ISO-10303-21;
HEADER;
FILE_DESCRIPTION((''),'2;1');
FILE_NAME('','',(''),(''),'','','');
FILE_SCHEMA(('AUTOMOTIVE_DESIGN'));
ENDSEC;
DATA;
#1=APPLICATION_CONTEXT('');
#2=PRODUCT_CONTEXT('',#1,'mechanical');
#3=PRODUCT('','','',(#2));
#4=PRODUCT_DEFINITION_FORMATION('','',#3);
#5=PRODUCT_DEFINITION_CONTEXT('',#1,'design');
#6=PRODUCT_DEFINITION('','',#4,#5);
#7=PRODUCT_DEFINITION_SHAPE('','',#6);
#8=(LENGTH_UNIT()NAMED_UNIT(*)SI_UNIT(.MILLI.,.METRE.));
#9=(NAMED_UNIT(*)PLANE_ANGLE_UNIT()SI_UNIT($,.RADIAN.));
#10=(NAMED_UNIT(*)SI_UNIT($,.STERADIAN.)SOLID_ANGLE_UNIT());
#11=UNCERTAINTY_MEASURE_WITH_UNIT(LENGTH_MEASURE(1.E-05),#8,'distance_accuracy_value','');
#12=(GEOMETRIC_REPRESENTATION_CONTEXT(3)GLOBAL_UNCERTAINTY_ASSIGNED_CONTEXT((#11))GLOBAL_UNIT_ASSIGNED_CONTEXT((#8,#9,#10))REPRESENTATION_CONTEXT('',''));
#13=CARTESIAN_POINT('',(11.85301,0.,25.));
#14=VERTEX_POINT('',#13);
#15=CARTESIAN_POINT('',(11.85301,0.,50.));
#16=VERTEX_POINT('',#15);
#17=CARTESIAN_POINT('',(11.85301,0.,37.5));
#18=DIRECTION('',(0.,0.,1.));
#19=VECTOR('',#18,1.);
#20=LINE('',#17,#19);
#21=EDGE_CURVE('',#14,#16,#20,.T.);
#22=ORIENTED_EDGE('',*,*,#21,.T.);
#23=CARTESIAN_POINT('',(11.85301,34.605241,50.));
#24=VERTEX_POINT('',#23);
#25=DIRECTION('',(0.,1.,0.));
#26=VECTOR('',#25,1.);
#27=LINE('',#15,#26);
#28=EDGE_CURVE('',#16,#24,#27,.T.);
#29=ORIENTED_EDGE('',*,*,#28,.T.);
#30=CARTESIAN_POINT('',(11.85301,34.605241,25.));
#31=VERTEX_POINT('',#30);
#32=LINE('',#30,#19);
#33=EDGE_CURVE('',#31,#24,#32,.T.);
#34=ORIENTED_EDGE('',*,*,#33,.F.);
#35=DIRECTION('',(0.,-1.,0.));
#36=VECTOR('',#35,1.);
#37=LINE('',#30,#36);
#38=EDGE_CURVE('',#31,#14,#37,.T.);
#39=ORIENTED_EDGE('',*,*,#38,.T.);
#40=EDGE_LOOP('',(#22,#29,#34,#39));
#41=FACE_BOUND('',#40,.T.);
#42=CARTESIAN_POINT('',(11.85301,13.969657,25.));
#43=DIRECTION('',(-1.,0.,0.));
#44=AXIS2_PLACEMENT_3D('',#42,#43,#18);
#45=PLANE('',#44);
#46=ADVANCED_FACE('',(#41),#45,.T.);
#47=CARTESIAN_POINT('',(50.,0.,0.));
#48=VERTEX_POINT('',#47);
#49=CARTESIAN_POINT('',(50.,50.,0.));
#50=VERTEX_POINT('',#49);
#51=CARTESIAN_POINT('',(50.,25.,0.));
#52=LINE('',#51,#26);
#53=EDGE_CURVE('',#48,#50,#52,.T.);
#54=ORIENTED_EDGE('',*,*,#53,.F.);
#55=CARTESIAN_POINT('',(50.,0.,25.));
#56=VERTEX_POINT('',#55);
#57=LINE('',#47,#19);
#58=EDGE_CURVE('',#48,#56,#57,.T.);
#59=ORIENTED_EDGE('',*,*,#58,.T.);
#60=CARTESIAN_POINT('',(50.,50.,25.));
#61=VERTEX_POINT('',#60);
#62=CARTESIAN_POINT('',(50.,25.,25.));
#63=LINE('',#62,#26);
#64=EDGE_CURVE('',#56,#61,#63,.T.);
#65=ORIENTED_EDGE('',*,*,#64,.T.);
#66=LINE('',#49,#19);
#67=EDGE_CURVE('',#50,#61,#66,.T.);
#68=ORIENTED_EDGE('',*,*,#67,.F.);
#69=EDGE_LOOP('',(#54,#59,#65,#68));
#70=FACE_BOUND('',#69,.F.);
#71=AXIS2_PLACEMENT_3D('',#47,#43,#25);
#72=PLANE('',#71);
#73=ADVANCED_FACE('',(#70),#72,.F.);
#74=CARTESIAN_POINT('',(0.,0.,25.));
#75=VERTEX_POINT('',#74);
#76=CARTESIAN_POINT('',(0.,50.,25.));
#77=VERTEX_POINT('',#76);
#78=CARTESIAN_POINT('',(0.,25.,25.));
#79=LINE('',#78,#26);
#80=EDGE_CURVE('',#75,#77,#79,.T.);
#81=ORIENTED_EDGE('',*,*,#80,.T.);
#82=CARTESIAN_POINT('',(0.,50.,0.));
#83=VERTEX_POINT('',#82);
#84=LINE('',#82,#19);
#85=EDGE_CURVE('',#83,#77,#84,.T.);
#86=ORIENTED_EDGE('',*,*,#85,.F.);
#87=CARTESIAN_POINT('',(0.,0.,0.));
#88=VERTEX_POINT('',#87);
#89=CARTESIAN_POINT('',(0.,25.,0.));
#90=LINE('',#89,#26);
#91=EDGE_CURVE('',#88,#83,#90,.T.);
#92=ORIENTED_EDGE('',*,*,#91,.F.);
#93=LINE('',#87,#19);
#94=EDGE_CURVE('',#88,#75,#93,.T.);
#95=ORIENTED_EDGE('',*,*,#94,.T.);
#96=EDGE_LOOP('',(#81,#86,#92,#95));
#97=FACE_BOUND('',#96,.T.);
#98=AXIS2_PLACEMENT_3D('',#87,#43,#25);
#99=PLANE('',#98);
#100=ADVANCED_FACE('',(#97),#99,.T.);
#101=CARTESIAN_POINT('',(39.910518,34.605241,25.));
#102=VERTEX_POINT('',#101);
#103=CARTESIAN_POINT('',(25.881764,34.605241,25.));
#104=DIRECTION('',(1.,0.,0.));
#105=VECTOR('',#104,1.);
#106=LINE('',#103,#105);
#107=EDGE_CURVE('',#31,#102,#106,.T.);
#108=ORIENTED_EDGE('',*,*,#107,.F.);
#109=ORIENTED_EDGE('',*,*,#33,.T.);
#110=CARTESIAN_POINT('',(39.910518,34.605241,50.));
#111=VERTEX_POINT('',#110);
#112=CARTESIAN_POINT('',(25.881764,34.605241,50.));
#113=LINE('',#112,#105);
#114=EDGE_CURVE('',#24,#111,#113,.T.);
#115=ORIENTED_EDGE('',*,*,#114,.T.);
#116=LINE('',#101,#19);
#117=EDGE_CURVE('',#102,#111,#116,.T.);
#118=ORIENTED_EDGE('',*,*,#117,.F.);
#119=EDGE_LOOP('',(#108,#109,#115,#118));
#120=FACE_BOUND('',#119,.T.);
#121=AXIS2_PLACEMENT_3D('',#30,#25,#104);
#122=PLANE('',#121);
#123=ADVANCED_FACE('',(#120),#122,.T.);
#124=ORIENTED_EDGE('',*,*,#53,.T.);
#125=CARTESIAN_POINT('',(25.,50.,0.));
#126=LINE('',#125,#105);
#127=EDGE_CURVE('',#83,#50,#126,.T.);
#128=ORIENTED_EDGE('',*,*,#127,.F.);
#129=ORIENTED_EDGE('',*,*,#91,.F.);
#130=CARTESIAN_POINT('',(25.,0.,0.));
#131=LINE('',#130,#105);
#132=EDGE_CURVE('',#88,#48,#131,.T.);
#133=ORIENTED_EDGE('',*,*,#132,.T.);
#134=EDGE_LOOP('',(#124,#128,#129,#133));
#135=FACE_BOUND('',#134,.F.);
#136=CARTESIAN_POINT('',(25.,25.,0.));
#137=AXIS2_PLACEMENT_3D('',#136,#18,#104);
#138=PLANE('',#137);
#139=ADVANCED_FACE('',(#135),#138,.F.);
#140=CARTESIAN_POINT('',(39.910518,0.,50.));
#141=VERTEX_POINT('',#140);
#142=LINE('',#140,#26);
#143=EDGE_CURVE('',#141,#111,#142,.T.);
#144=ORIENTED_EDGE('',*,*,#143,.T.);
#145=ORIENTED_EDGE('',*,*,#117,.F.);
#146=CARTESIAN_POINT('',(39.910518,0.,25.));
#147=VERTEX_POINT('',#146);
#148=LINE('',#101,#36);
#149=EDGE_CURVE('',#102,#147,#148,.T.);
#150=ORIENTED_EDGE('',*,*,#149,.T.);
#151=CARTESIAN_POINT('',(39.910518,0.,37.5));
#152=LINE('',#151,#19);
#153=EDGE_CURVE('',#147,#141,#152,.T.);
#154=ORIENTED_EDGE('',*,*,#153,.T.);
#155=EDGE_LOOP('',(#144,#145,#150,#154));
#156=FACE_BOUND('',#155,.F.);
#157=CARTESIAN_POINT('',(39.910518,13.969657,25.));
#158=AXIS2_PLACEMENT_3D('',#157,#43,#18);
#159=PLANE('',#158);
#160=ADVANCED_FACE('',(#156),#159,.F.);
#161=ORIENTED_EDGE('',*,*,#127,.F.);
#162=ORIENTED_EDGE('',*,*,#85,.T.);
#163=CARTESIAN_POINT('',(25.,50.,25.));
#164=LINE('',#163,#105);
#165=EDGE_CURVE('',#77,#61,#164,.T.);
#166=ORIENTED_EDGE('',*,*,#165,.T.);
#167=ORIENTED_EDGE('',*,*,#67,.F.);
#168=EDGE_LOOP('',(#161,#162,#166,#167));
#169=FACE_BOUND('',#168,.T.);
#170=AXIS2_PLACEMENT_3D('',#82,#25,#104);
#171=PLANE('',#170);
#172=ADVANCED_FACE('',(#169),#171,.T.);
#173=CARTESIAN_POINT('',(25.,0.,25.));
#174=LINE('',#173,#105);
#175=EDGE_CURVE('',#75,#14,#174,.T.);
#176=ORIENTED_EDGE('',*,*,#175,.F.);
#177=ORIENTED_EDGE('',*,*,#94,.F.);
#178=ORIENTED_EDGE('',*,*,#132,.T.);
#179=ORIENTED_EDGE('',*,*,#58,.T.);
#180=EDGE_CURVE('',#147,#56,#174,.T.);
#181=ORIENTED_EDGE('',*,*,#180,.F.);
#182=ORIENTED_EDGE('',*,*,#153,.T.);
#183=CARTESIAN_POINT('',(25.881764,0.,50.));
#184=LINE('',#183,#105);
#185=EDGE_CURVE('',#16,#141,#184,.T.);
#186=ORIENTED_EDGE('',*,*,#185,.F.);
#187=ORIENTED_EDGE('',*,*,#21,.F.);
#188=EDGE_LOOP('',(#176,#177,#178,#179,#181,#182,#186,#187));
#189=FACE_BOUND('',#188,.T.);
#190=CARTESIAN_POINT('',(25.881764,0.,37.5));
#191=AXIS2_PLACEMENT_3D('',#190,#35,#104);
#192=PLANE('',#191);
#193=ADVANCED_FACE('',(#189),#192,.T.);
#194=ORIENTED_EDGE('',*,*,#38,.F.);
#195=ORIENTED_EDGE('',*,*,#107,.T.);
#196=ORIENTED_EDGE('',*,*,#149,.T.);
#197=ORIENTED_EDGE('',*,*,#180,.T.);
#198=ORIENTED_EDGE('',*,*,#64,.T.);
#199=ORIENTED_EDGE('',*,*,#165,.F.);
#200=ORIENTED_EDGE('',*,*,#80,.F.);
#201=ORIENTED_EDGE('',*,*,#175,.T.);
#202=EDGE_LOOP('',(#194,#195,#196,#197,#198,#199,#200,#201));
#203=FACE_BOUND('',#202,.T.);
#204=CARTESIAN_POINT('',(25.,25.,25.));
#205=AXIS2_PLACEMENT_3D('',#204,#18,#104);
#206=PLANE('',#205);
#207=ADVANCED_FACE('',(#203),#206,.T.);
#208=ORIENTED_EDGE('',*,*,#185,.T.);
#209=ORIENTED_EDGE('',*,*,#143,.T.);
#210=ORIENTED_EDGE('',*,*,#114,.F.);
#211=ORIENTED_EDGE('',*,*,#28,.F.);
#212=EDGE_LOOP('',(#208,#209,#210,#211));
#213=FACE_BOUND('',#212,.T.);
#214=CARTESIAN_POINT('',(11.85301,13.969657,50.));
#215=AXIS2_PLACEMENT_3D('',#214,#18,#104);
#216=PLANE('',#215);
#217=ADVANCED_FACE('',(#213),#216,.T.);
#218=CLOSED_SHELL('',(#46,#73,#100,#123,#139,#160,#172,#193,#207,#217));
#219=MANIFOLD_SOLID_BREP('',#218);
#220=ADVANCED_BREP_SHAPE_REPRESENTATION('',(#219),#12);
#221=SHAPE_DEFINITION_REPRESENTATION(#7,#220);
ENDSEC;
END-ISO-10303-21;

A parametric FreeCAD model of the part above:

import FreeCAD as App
import Part
import Sketcher

doc = App.newDocument("Part")
body = doc.addObject("PartDesign::Body", "Body")

sketch1 = body.newObject("Sketcher::SketchObject", "Sketch")
sketch1.AttachmentSupport = (doc.getObject("XY_Plane"), [""])
sketch1.MapMode = "FlatFace"
sketch1.addGeometry([
    Part.LineSegment(App.Vector(0, 50, 0), App.Vector(0, 0, 0)),
    Part.LineSegment(App.Vector(0, 0, 0), App.Vector(50, 0, 0)),
    Part.LineSegment(App.Vector(50, 0, 0), App.Vector(50, 50, 0)),
    Part.LineSegment(App.Vector(50, 50, 0), App.Vector(0, 50, 0)),
], False)
sketch1.addConstraint([
    Sketcher.Constraint("Coincident", 0, 2, 1, 1),
    Sketcher.Constraint("Coincident", 1, 2, 2, 1),
    Sketcher.Constraint("Coincident", 2, 2, 3, 1),
    Sketcher.Constraint("Coincident", 3, 2, 0, 1),
    Sketcher.Constraint("Vertical", 0),
    Sketcher.Constraint("Horizontal", 1),
    Sketcher.Constraint("Vertical", 2),
    Sketcher.Constraint("Horizontal", 3),
    Sketcher.Constraint("Coincident", 0, 2, -1, 1),
    Sketcher.Constraint("Equal", 3, 0),
    Sketcher.Constraint("DistanceX", 1, 1, 1, 2, 50.0),
])
pad1 = body.newObject("PartDesign::Pad", "Pad")
pad1.Profile = sketch1
pad1.Length = 25

sketch2 = body.newObject("Sketcher::SketchObject", "Sketch001")
sketch2.AttachmentSupport = (doc.getObject("XY_Plane"), [""])
sketch2.MapMode = "FlatFace"
sketch2.AttachmentOffset = App.Placement(App.Vector(0, 0, 25), App.Rotation())
sketch2.addGeometry([
    Part.LineSegment(App.Vector(12, 35, 0), App.Vector(12, 14, 0)),
    Part.LineSegment(App.Vector(12, 14, 0), App.Vector(40, 14, 0)),
    Part.LineSegment(App.Vector(40, 14, 0), App.Vector(40, 35, 0)),
    Part.LineSegment(App.Vector(40, 35, 0), App.Vector(12, 35, 0)),
], False)
sketch2.addConstraint([
    Sketcher.Constraint("Coincident", 0, 2, 1, 1),
    Sketcher.Constraint("Coincident", 1, 2, 2, 1),
    Sketcher.Constraint("Coincident", 2, 2, 3, 1),
    Sketcher.Constraint("Coincident", 3, 2, 0, 1),
    Sketcher.Constraint("Vertical", 0),
    Sketcher.Constraint("Horizontal", 1),
    Sketcher.Constraint("Vertical", 2),
    Sketcher.Constraint("Horizontal", 3),
    Sketcher.Constraint("DistanceX", 1, 1, 1, 2, 28.057508),
    Sketcher.Constraint("DistanceY", 0, 2, 0, 1, 20.635585),
    Sketcher.Constraint("DistanceX", -1, 1, 0, 2, 11.85301),
    Sketcher.Constraint("DistanceY", -1, 1, 2, 2, 34.605241),
])
pad2 = body.newObject("PartDesign::Pad", "Pad001")
pad2.Profile = sketch2
pad2.Length = 25

sketch3 = body.newObject("Sketcher::SketchObject", "Sketch002")
sketch3.AttachmentSupport = (doc.getObject("XZ_Plane"), [""])
sketch3.MapMode = "FlatFace"
sketch3.AttachmentOffset = App.Placement(App.Vector(0, 0, -13.969657), App.Rotation())
sketch3.addGeometry([
    Part.LineSegment(App.Vector(12, 50, 0), App.Vector(12, 25, 0)),
    Part.LineSegment(App.Vector(12, 25, 0), App.Vector(40, 25, 0)),
    Part.LineSegment(App.Vector(40, 25, 0), App.Vector(40, 50, 0)),
    Part.LineSegment(App.Vector(40, 50, 0), App.Vector(12, 50, 0)),
], False)
sketch3.addConstraint([
    Sketcher.Constraint("Coincident", 0, 2, 1, 1),
    Sketcher.Constraint("Coincident", 1, 2, 2, 1),
    Sketcher.Constraint("Coincident", 2, 2, 3, 1),
    Sketcher.Constraint("Coincident", 3, 2, 0, 1),
    Sketcher.Constraint("Vertical", 0),
    Sketcher.Constraint("Horizontal", 1),
    Sketcher.Constraint("Vertical", 2),
    Sketcher.Constraint("Horizontal", 3),
    Sketcher.Constraint("DistanceY", 0, 2, 0, 1, 25.0),
    Sketcher.Constraint("DistanceY", -1, 1, 0, 2, 25.0),
    Sketcher.Constraint("DistanceX", 1, 1, 1, 2, 28.057508),
    Sketcher.Constraint("DistanceX", -1, 1, 0, 2, 11.85301),
])
pad3 = body.newObject("PartDesign::Pad", "Pad002")
pad3.Profile = sketch3
pad3.Length = 13.969657

doc.recompute()
